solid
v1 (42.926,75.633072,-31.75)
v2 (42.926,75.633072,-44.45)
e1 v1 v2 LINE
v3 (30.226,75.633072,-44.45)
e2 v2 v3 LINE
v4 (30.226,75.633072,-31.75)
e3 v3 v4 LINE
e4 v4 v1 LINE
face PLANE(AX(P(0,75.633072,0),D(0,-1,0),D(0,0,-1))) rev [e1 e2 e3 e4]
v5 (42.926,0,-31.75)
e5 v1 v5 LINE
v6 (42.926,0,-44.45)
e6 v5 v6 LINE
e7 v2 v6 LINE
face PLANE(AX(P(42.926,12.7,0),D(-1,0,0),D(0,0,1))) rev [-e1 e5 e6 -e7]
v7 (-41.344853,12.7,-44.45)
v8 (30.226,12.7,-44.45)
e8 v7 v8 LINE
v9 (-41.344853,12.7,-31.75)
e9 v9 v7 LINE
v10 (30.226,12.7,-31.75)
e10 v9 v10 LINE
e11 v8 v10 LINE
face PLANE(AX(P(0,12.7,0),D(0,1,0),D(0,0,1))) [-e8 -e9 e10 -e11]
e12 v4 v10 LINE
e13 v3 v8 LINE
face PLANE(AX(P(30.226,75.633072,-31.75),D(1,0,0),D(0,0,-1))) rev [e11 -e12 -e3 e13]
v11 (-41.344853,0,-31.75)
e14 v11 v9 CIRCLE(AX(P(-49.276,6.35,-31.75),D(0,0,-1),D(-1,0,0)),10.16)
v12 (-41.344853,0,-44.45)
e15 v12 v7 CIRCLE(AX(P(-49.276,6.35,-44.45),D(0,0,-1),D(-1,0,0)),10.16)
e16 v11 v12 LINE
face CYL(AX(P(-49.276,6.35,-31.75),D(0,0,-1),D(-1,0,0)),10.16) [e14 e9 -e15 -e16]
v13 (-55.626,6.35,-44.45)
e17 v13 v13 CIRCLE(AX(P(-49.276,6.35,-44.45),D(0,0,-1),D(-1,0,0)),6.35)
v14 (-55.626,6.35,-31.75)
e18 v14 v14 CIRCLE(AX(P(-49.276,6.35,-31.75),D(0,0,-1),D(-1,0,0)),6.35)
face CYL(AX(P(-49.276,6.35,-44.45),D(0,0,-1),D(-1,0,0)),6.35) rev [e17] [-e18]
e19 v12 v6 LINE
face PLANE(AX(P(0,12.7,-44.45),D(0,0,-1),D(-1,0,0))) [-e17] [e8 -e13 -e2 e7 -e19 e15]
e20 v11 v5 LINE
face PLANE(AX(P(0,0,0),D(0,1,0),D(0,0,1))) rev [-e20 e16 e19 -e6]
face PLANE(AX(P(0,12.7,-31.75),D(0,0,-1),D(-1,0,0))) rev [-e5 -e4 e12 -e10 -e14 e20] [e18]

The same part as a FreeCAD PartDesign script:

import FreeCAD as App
import Part
import Sketcher

V = App.Vector
Q = App.Units.Quantity

doc = App.newDocument("Part")
params = doc.addObject("Spreadsheet::Sheet", "Params")
for row, (alias, value) in enumerate([
    ("sketch1_height", "0.5 in"),
    ("sketch1_width", "3.38 in"),
    ("pad1_length", "0.5 in"),
    ("sketch2_width", "0.5 in"),
    ("pad2_length", "62.933072 mm"),
    ("sketch3_diameter", "0.8 in"),
    ("pad3_length", "0.5 in"),
    ("sketch4_diameter", "0.5 in"),
    ("hole_diameter", "0.5 in"),
], start=1):
    params.set(f"A{row}", alias)
    params.set(f"B{row}", "=" + value)
    params.setAlias(f"B{row}", alias)

body = doc.addObject("PartDesign::Body", "Body")

# Sketch on XZ plane
sketch1 = body.newObject("Sketcher::SketchObject", "Sketch")
sketch1.AttachmentSupport = (doc.getObject("XZ_Plane"), [""])
sketch1.MapMode = "FlatFace"
sketch1.addGeometry([
    Part.LineSegment(V(-43, -44, 0), V(-43, -32, 0)),
    Part.LineSegment(V(-43, -32, 0), V(43, -32, 0)),
    Part.LineSegment(V(43, -32, 0), V(43, -44, 0)),
    Part.LineSegment(V(43, -44, 0), V(-43, -44, 0)),
], False)
sketch1.addConstraint([
    Sketcher.Constraint("Coincident", 0, 2, 1, 1),
    Sketcher.Constraint("Coincident", 1, 2, 2, 1),
    Sketcher.Constraint("Coincident", 2, 2, 3, 1),
    Sketcher.Constraint("Coincident", 3, 2, 0, 1),
    Sketcher.Constraint("Vertical", 0),
    Sketcher.Constraint("Horizontal", 1),
    Sketcher.Constraint("Vertical", 2),
    Sketcher.Constraint("Horizontal", 3),
    Sketcher.Constraint("DistanceY", 0, 1, 0, 2, Q("0.5 in")),
    Sketcher.Constraint("DistanceX", 1, 1, 1, 2, Q("3.38 in")),
    Sketcher.Constraint("DistanceX", 0, 2, -1, 1, Q("1.69 in")),
    Sketcher.Constraint("DistanceY", 0, 2, -1, 1, Q("1.25 in")),
])
sketch1.setExpression("Constraints[8]", "Params.sketch1_height")
sketch1.setExpression("Constraints[9]", "Params.sketch1_width")
pad1 = body.newObject("PartDesign::Pad", "Pad")
pad1.Profile = sketch1
pad1.setExpression("Length", "Params.pad1_length")
pad1.Reversed = True

# Sketch on XZ plane
sketch2 = body.newObject("Sketcher::SketchObject", "Sketch001")
sketch2.AttachmentSupport = (doc.getObject("XZ_Plane"), [""])
sketch2.MapMode = "FlatFace"
sketch2.AttachmentOffset = App.Placement(V(0, 0, -0.5 * 25.4), App.Rotation())
sketch2.addGeometry([
    Part.LineSegment(V(30, -44, 0), V(30, -32, 0)),
    Part.LineSegment(V(30, -32, 0), V(43, -32, 0)),
    Part.LineSegment(V(43, -32, 0), V(43, -44, 0)),
    Part.LineSegment(V(43, -44, 0), V(30, -44, 0)),
], False)
sketch2.addConstraint([
    Sketcher.Constraint("Coincident", 0, 2, 1, 1),
    Sketcher.Constraint("Coincident", 1, 2, 2, 1),
    Sketcher.Constraint("Coincident", 2, 2, 3, 1),
    Sketcher.Constraint("Coincident", 3, 2, 0, 1),
    Sketcher.Constraint("Vertical", 0),
    Sketcher.Constraint("Horizontal", 1),
    Sketcher.Constraint("Vertical", 2),
    Sketcher.Constraint("Horizontal", 3),
    Sketcher.Constraint("Equal", 3, 0),
    Sketcher.Constraint("DistanceX", 1, 1, 1, 2, Q("0.5 in")),
    Sketcher.Constraint("DistanceX", -1, 1, 0, 2, Q("1.19 in")),
    Sketcher.Constraint("DistanceY", 0, 2, -1, 1, Q("1.25 in")),
])
sketch2.setExpression("Constraints[9]", "Params.sketch2_width")
pad2 = body.newObject("PartDesign::Pad", "Pad001")
pad2.Profile = sketch2
pad2.setExpression("Length", "Params.pad2_length")
pad2.Reversed = True

# Sketch on XY plane
sketch3 = body.newObject("Sketcher::SketchObject", "Sketch002")
sketch3.AttachmentSupport = (doc.getObject("XY_Plane"), [""])
sketch3.MapMode = "FlatFace"
sketch3.AttachmentOffset = App.Placement(V(0, 0, -1.75 * 25.4), App.Rotation())
sketch3.addGeometry(Part.Circle(V(-49, 6, 0), V(0, 0, 1), 10), False)
sketch3.addConstraint([
    Sketcher.Constraint("Diameter", 0, Q("0.8 in")),
    Sketcher.Constraint("DistanceX", 0, 3, -1, 1, Q("1.94 in")),
    Sketcher.Constraint("DistanceY", -1, 1, 0, 3, Q("0.25 in")),
])
sketch3.setExpression("Constraints[0]", "Params.sketch3_diameter")
pad3 = body.newObject("PartDesign::Pad", "Pad002")
pad3.Profile = sketch3
pad3.setExpression("Length", "Params.pad3_length")

# Sketch on XY plane
sketch4 = body.newObject("Sketcher::SketchObject", "Sketch003")
sketch4.AttachmentSupport = (doc.getObject("XY_Plane"), [""])
sketch4.MapMode = "FlatFace"
sketch4.AttachmentOffset = App.Placement(V(0, 0, -1.75 * 25.4), App.Rotation())
sketch4.addGeometry(Part.Circle(V(-49, 6, 0), V(0, 0, 1), 6), False)
sketch4.addConstraint([
    Sketcher.Constraint("Diameter", 0, Q("0.5 in")),
    Sketcher.Constraint("DistanceX", 0, 3, -1, 1, Q("1.94 in")),
    Sketcher.Constraint("DistanceY", -1, 1, 0, 3, Q("0.25 in")),
])
sketch4.setExpression("Constraints[0]", "Params.sketch4_diameter")
doc.recompute()
hole = body.newObject("PartDesign::Hole", "Hole")
hole.Profile = sketch4
hole.ThreadType = "None"
hole.setExpression("Diameter", "Params.hole_diameter")
hole.DepthType = "ThroughAll"
hole.Reversed = True

doc.recompute()
